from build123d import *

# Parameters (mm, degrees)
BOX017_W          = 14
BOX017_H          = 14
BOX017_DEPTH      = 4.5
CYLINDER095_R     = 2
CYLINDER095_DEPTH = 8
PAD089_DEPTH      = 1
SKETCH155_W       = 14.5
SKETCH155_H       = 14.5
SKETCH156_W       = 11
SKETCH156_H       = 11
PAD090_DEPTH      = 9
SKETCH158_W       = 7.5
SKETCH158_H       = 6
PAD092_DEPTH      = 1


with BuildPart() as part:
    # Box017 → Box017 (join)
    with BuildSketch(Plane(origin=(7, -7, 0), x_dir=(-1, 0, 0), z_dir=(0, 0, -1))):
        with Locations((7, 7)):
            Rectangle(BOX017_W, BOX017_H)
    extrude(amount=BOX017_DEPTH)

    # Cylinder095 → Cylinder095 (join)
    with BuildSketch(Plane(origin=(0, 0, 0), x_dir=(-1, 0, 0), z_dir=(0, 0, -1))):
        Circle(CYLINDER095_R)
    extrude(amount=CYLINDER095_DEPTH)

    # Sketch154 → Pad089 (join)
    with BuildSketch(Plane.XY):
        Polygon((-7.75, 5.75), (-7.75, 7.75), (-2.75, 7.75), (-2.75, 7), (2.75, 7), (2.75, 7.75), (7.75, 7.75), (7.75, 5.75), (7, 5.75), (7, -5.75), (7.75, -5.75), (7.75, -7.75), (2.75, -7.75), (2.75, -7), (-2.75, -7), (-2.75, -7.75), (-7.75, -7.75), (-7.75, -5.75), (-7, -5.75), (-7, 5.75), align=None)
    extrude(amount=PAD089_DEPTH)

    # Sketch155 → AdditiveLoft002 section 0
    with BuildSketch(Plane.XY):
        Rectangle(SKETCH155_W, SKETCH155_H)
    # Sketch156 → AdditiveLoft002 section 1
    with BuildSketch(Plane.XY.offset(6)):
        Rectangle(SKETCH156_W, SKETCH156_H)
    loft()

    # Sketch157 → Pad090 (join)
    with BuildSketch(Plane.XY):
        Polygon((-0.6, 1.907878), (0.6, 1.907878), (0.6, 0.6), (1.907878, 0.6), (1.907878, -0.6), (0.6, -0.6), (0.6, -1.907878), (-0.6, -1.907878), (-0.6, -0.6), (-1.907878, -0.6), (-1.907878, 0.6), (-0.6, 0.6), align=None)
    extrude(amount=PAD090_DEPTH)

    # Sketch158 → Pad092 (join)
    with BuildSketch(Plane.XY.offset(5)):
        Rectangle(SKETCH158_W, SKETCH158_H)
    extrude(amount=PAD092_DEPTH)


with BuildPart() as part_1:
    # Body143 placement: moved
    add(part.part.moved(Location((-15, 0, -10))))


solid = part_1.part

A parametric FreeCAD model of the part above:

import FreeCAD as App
import Part
import Sketcher

V = App.Vector
Q = App.Units.Quantity

doc = App.newDocument("Part")
params = doc.addObject("Spreadsheet::Sheet", "Params")
for row, (alias, value) in enumerate([
    ("sketch1_width", "14 mm"),
    ("pad1_length", "4.5 mm"),
    ("sketch2_diameter", "4 mm"),
    ("pad2_length", "8 mm"),
    ("sketch3_width", "5 mm"),
    ("sketch3_height", "2 mm"),
    ("sketch3_width2", "5.5 mm"),
    ("sketch3_height2", "11.5 mm"),
    ("pad3_length", "1 mm"),
    ("sketch4_width", "14.5 mm"),
    ("sketch5_width", "11 mm"),
    ("sketch6_width", "1.2 mm"),
    ("pad4_length", "9 mm"),
    ("sketch7_height", "6 mm"),
    ("sketch7_width", "7.5 mm"),
    ("pad5_length", "1 mm"),
], start=1):
    params.set(f"A{row}", alias)
    params.set(f"B{row}", "=" + value)
    params.setAlias(f"B{row}", alias)

body = doc.addObject("PartDesign::Body", "Body")

sketch1 = doc.addObject("Sketcher::SketchObject", "Sketch")
body.addObject(sketch1)
sketch1.AttachmentSupport = (doc.XY_Plane, [""])
sketch1.MapMode = "FlatFace"
sketch1.addGeometry(Part.LineSegment(V(7, 7, 0), V(7, -7, 0)), False)
sketch1.addGeometry(Part.LineSegment(V(7, -7, 0), V(-7, -7, 0)), False)
sketch1.addGeometry(Part.LineSegment(V(-7, -7, 0), V(-7, 7, 0)), False)
sketch1.addGeometry(Part.LineSegment(V(-7, 7, 0), V(7, 7, 0)), False)
sketch1.addConstraint(Sketcher.Constraint("Coincident", 0, 2, 1, 1))
sketch1.addConstraint(Sketcher.Constraint("Coincident", 1, 2, 2, 1))
sketch1.addConstraint(Sketcher.Constraint("Coincident", 2, 2, 3, 1))
sketch1.addConstraint(Sketcher.Constraint("Coincident", 3, 2, 0, 1))
sketch1.addConstraint(Sketcher.Constraint("Vertical", 0))
sketch1.addConstraint(Sketcher.Constraint("Horizontal", 1))
sketch1.addConstraint(Sketcher.Constraint("Vertical", 2))
sketch1.addConstraint(Sketcher.Constraint("Horizontal", 3))
sketch1.addConstraint(Sketcher.Constraint("Symmetric", 0, 2, 2, 2, -1, 1))
sketch1.addConstraint(Sketcher.Constraint("Equal", 3, 0))
sketch1.addConstraint(Sketcher.Constraint("DistanceX", 1, 2, 1, 1, Q("14 mm")))
sketch1.setExpression("Constraints[10]", "Params.sketch1_width")
pad1 = doc.addObject("PartDesign::Pad", "Pad")
body.addObject(pad1)
pad1.Profile = sketch1
pad1.setExpression("Length", "Params.pad1_length")
pad1.Reversed = True

sketch2 = doc.addObject("Sketcher::SketchObject", "Sketch001")
body.addObject(sketch2)
sketch2.AttachmentSupport = (doc.XY_Plane, [""])
sketch2.MapMode = "FlatFace"
sketch2.addGeometry(Part.Circle(V(0, 0, 0), V(0, 0, 1), 2), False)
sketch2.addConstraint(Sketcher.Constraint("Coincident", 0, 3, -1, 1))
sketch2.addConstraint(Sketcher.Constraint("Diameter", 0, Q("4 mm")))
sketch2.setExpression("Constraints[1]", "Params.sketch2_diameter")
pad2 = doc.addObject("PartDesign::Pad", "Pad001")
body.addObject(pad2)
pad2.Profile = sketch2
pad2.setExpression("Length", "Params.pad2_length")
pad2.Reversed = True

sketch3 = doc.addObject("Sketcher::SketchObject", "Sketch002")
body.addObject(sketch3)
sketch3.AttachmentSupport = (doc.XY_Plane, [""])
sketch3.MapMode = "FlatFace"
sketch3.addGeometry(Part.LineSegment(V(-7.75, 7.75, 0), V(-7.75, 5.75, 0)), False)
sketch3.addGeometry(Part.LineSegment(V(-7.75, 5.75, 0), V(-7, 5.75, 0)), False)
sketch3.addGeometry(Part.LineSegment(V(-7, 5.75, 0), V(-7, -5.75, 0)), False)
sketch3.addGeometry(Part.LineSegment(V(-7, -5.75, 0), V(-7.75, -5.75, 0)), False)
sketch3.addGeometry(Part.LineSegment(V(-7.75, -5.75, 0), V(-7.75, -7.75, 0)), False)
sketch3.addGeometry(Part.LineSegment(V(-7.75, -7.75, 0), V(-2.75, -7.75, 0)), False)
sketch3.addGeometry(Part.LineSegment(V(-2.75, -7.75, 0), V(-2.75, -7, 0)), False)
sketch3.addGeometry(Part.LineSegment(V(-2.75, -7, 0), V(2.75, -7, 0)), False)
sketch3.addGeometry(Part.LineSegment(V(2.75, -7, 0), V(2.75, -7.75, 0)), False)
sketch3.addGeometry(Part.LineSegment(V(2.75, -7.75, 0), V(7.75, -7.75, 0)), False)
sketch3.addGeometry(Part.LineSegment(V(7.75, -7.75, 0), V(7.75, -5.75, 0)), False)
sketch3.addGeometry(Part.LineSegment(V(7.75, -5.75, 0), V(7, -5.75, 0)), False)
sketch3.addGeometry(Part.LineSegment(V(7, -5.75, 0), V(7, 5.75, 0)), False)
sketch3.addGeometry(Part.LineSegment(V(7, 5.75, 0), V(7.75, 5.75, 0)), False)
sketch3.addGeometry(Part.LineSegment(V(7.75, 5.75, 0), V(7.75, 7.75, 0)), False)
sketch3.addGeometry(Part.LineSegment(V(7.75, 7.75, 0), V(2.75, 7.75, 0)), False)
sketch3.addGeometry(Part.LineSegment(V(2.75, 7.75, 0), V(2.75, 7, 0)), False)
sketch3.addGeometry(Part.LineSegment(V(2.75, 7, 0), V(-2.75, 7, 0)), False)
sketch3.addGeometry(Part.LineSegment(V(-2.75, 7, 0), V(-2.75, 7.75, 0)), False)
sketch3.addGeometry(Part.LineSegment(V(-2.75, 7.75, 0), V(-7.75, 7.75, 0)), False)
sketch3.addConstraint(Sketcher.Constraint("Coincident", 0, 2, 1, 1))
sketch3.addConstraint(Sketcher.Constraint("Coincident", 1, 2, 2, 1))
sketch3.addConstraint(Sketcher.Constraint("Coincident", 2, 2, 3, 1))
sketch3.addConstraint(Sketcher.Constraint("Coincident", 3, 2, 4, 1))
sketch3.addConstraint(Sketcher.Constraint("Coincident", 4, 2, 5, 1))
sketch3.addConstraint(Sketcher.Constraint("Coincident", 5, 2, 6, 1))
sketch3.addConstraint(Sketcher.Constraint("Coincident", 6, 2, 7, 1))
sketch3.addConstraint(Sketcher.Constraint("Coincident", 7, 2, 8, 1))
sketch3.addConstraint(Sketcher.Constraint("Coincident", 8, 2, 9, 1))
sketch3.addConstraint(Sketcher.Constraint("Coincident", 9, 2, 10, 1))
sketch3.addConstraint(Sketcher.Constraint("Coincident", 10, 2, 11, 1))
sketch3.addConstraint(Sketcher.Constraint("Coincident", 11, 2, 12, 1))
sketch3.addConstraint(Sketcher.Constraint("Coincident", 12, 2, 13, 1))
sketch3.addConstraint(Sketcher.Constraint("Coincident", 13, 2, 14, 1))
sketch3.addConstraint(Sketcher.Constraint("Coincident", 14, 2, 15, 1))
sketch3.addConstraint(Sketcher.Constraint("Coincident", 15, 2, 16, 1))
sketch3.addConstraint(Sketcher.Constraint("Coincident", 16, 2, 17, 1))
sketch3.addConstraint(Sketcher.Constraint("Coincident", 17, 2, 18, 1))
sketch3.addConstraint(Sketcher.Constraint("Coincident", 18, 2, 19, 1))
sketch3.addConstraint(Sketcher.Constraint("Coincident", 19, 2, 0, 1))
sketch3.addConstraint(Sketcher.Constraint("Vertical", 0))
sketch3.addConstraint(Sketcher.Constraint("Horizontal", 1))
sketch3.addConstraint(Sketcher.Constraint("Vertical", 2))
sketch3.addConstraint(Sketcher.Constraint("Horizontal", 3))
sketch3.addConstraint(Sketcher.Constraint("Vertical", 4))
sketch3.addConstraint(Sketcher.Constraint("Horizontal", 5))
sketch3.addConstraint(Sketcher.Constraint("Vertical", 6))
sketch3.addConstraint(Sketcher.Constraint("Horizontal", 7))
sketch3.addConstraint(Sketcher.Constraint("Vertical", 8))
sketch3.addConstraint(Sketcher.Constraint("Horizontal", 9))
sketch3.addConstraint(Sketcher.Constraint("Vertical", 10))
sketch3.addConstraint(Sketcher.Constraint("Horizontal", 11))
sketch3.addConstraint(Sketcher.Constraint("Vertical", 12))
sketch3.addConstraint(Sketcher.Constraint("Horizontal", 13))
sketch3.addConstraint(Sketcher.Constraint("Vertical", 14))
sketch3.addConstraint(Sketcher.Constraint("Horizontal", 15))
sketch3.addConstraint(Sketcher.Constraint("Vertical", 16))
sketch3.addConstraint(Sketcher.Constraint("Horizontal", 17))
sketch3.addConstraint(Sketcher.Constraint("Vertical", 18))
sketch3.addConstraint(Sketcher.Constraint("Horizontal", 19))
sketch3.addConstraint(Sketcher.Constraint("Symmetric", 0, 2, 10, 2, -1, 1))
sketch3.addConstraint(Sketcher.Constraint("Symmetric", 2, 2, 12, 2, -1, 1))
sketch3.addConstraint(Sketcher.Constraint("Symmetric", 4, 2, 14, 2, -1, 1))
sketch3.addConstraint(Sketcher.Constraint("Symmetric", 6, 2, 16, 2, -1, 1))
sketch3.addConstraint(Sketcher.Constraint("Symmetric", 8, 2, 18, 2, -1, 1))
sketch3.addConstraint(Sketcher.Constraint("Symmetric", 5, 2, 8, 2, -2))
sketch3.addConstraint(Sketcher.Constraint("Symmetric", 3, 2, 10, 2, -2))
sketch3.addConstraint(Sketcher.Constraint("Equal", 13, 6))
sketch3.addConstraint(Sketcher.Constraint("DistanceX", 5, 1, 5, 2, Q("5 mm")))
sketch3.addConstraint(Sketcher.Constraint("DistanceY", 0, 2, 0, 1, Q("2 mm")))
sketch3.addConstraint(Sketcher.Constraint("DistanceX", 7, 1, 7, 2, Q("5.5 mm")))
sketch3.addConstraint(Sketcher.Constraint("DistanceY", 2, 2, 2, 1, Q("11.5 mm")))
sketch3.addConstraint(Sketcher.Constraint("DistanceX", 1, 2, -1, 1, Q("7 mm")))
sketch3.setExpression("Constraints[48]", "Params.sketch3_width")
sketch3.setExpression("Constraints[49]", "Params.sketch3_height")
sketch3.setExpression("Constraints[50]", "Params.sketch3_width2")
sketch3.setExpression("Constraints[51]", "Params.sketch3_height2")
pad3 = doc.addObject("PartDesign::Pad", "Pad002")
body.addObject(pad3)
pad3.Profile = sketch3
pad3.setExpression("Length", "Params.pad3_length")

sketch4 = doc.addObject("Sketcher::SketchObject", "Sketch003")
body.addObject(sketch4)
sketch4.AttachmentSupport = (doc.XY_Plane, [""])
sketch4.MapMode = "FlatFace"
sketch4.addGeometry(Part.LineSegment(V(-7.25, 7.25, 0), V(-7.25, -7.25, 0)), False)
sketch4.addGeometry(Part.LineSegment(V(-7.25, -7.25, 0), V(7.25, -7.25, 0)), False)
sketch4.addGeometry(Part.LineSegment(V(7.25, -7.25, 0), V(7.25, 7.25, 0)), False)
sketch4.addGeometry(Part.LineSegment(V(7.25, 7.25, 0), V(-7.25, 7.25, 0)), False)
sketch4.addConstraint(Sketcher.Constraint("Coincident", 0, 2, 1, 1))
sketch4.addConstraint(Sketcher.Constraint("Coincident", 1, 2, 2, 1))
sketch4.addConstraint(Sketcher.Constraint("Coincident", 2, 2, 3, 1))
sketch4.addConstraint(Sketcher.Constraint("Coincident", 3, 2, 0, 1))
sketch4.addConstraint(Sketcher.Constraint("Vertical", 0))
sketch4.addConstraint(Sketcher.Constraint("Horizontal", 1))
sketch4.addConstraint(Sketcher.Constraint("Vertical", 2))
sketch4.addConstraint(Sketcher.Constraint("Horizontal", 3))
sketch4.addConstraint(Sketcher.Constraint("Symmetric", 0, 2, 2, 2, -1, 1))
sketch4.addConstraint(Sketcher.Constraint("Equal", 3, 0))
sketch4.addConstraint(Sketcher.Constraint("DistanceX", 1, 1, 1, 2, Q("14.5 mm")))
sketch4.setExpression("Constraints[10]", "Params.sketch4_width")

sketch5 = doc.addObject("Sketcher::SketchObject", "Sketch004")
body.addObject(sketch5)
sketch5.AttachmentSupport = (doc.XY_Plane, [""])
sketch5.MapMode = "FlatFace"
sketch5.AttachmentOffset = App.Placement(V(0, 0, 6), App.Rotation())
sketch5.addGeometry(Part.LineSegment(V(-5.5, 5.5, 0), V(-5.5, -5.5, 0)), False)
sketch5.addGeometry(Part.LineSegment(V(-5.5, -5.5, 0), V(5.5, -5.5, 0)), False)
sketch5.addGeometry(Part.LineSegment(V(5.5, -5.5, 0), V(5.5, 5.5, 0)), False)
sketch5.addGeometry(Part.LineSegment(V(5.5, 5.5, 0), V(-5.5, 5.5, 0)), False)
sketch5.addConstraint(Sketcher.Constraint("Coincident", 0, 2, 1, 1))
sketch5.addConstraint(Sketcher.Constraint("Coincident", 1, 2, 2, 1))
sketch5.addConstraint(Sketcher.Constraint("Coincident", 2, 2, 3, 1))
sketch5.addConstraint(Sketcher.Constraint("Coincident", 3, 2, 0, 1))
sketch5.addConstraint(Sketcher.Constraint("Vertical", 0))
sketch5.addConstraint(Sketcher.Constraint("Horizontal", 1))
sketch5.addConstraint(Sketcher.Constraint("Vertical", 2))
sketch5.addConstraint(Sketcher.Constraint("Horizontal", 3))
sketch5.addConstraint(Sketcher.Constraint("Symmetric", 0, 2, 2, 2, -1, 1))
sketch5.addConstraint(Sketcher.Constraint("Equal", 3, 0))
sketch5.addConstraint(Sketcher.Constraint("DistanceX", 1, 1, 1, 2, Q("11 mm")))
sketch5.setExpression("Constraints[10]", "Params.sketch5_width")

additiveloft = doc.addObject("PartDesign::AdditiveLoft", "AdditiveLoft")
body.addObject(additiveloft)
additiveloft.Profile = sketch4
additiveloft.Sections = [sketch5]

sketch6 = doc.addObject("Sketcher::SketchObject", "Sketch005")
body.addObject(sketch6)
sketch6.AttachmentSupport = (doc.XY_Plane, [""])
sketch6.MapMode = "FlatFace"
sketch6.addGeometry(Part.LineSegment(V(0.6, 1.907878, 0), V(-0.6, 1.907878, 0)), False)
sketch6.addGeometry(Part.LineSegment(V(-0.6, 1.907878, 0), V(-0.6, 0.6, 0)), False)
sketch6.addGeometry(Part.LineSegment(V(-0.6, 0.6, 0), V(-1.907878, 0.6, 0)), False)
sketch6.addGeometry(Part.LineSegment(V(-1.907878, 0.6, 0), V(-1.907878, -0.6, 0)), False)
sketch6.addGeometry(Part.LineSegment(V(-1.907878, -0.6, 0), V(-0.6, -0.6, 0)), False)
sketch6.addGeometry(Part.LineSegment(V(-0.6, -0.6, 0), V(-0.6, -1.907878, 0)), False)
sketch6.addGeometry(Part.LineSegment(V(-0.6, -1.907878, 0), V(0.6, -1.907878, 0)), False)
sketch6.addGeometry(Part.LineSegment(V(0.6, -1.907878, 0), V(0.6, -0.6, 0)), False)
sketch6.addGeometry(Part.LineSegment(V(0.6, -0.6, 0), V(1.907878, -0.6, 0)), False)
sketch6.addGeometry(Part.LineSegment(V(1.907878, -0.6, 0), V(1.907878, 0.6, 0)), False)
sketch6.addGeometry(Part.LineSegment(V(1.907878, 0.6, 0), V(0.6, 0.6, 0)), False)
sketch6.addGeometry(Part.LineSegment(V(0.6, 0.6, 0), V(0.6, 1.907878, 0)), False)
sketch6.addConstraint(Sketcher.Constraint("Coincident", 0, 2, 1, 1))
sketch6.addConstraint(Sketcher.Constraint("Coincident", 1, 2, 2, 1))
sketch6.addConstraint(Sketcher.Constraint("Coincident", 2, 2, 3, 1))
sketch6.addConstraint(Sketcher.Constraint("Coincident", 3, 2, 4, 1))
sketch6.addConstraint(Sketcher.Constraint("Coincident", 4, 2, 5, 1))
sketch6.addConstraint(Sketcher.Constraint("Coincident", 5, 2, 6, 1))
sketch6.addConstraint(Sketcher.Constraint("Coincident", 6, 2, 7, 1))
sketch6.addConstraint(Sketcher.Constraint("Coincident", 7, 2, 8, 1))
sketch6.addConstraint(Sketcher.Constraint("Coincident", 8, 2, 9, 1))
sketch6.addConstraint(Sketcher.Constraint("Coincident", 9, 2, 10, 1))
sketch6.addConstraint(Sketcher.Constraint("Coincident", 10, 2, 11, 1))
sketch6.addConstraint(Sketcher.Constraint("Coincident", 11, 2, 0, 1))
sketch6.addConstraint(Sketcher.Constraint("Horizontal", 0))
sketch6.addConstraint(Sketcher.Constraint("Vertical", 1))
sketch6.addConstraint(Sketcher.Constraint("Horizontal", 2))
sketch6.addConstraint(Sketcher.Constraint("Vertical", 3))
sketch6.addConstraint(Sketcher.Constraint("Horizontal", 4))
sketch6.addConstraint(Sketcher.Constraint("Vertical", 5))
sketch6.addConstraint(Sketcher.Constraint("Horizontal", 6))
sketch6.addConstraint(Sketcher.Constraint("Vertical", 7))
sketch6.addConstraint(Sketcher.Constraint("Horizontal", 8))
sketch6.addConstraint(Sketcher.Constraint("Vertical", 9))
sketch6.addConstraint(Sketcher.Constraint("Horizontal", 10))
sketch6.addConstraint(Sketcher.Constraint("Vertical", 11))
sketch6.addConstraint(Sketcher.Constraint("Symmetric", 0, 2, 6, 2, -1, 1))
sketch6.addConstraint(Sketcher.Constraint("Symmetric", 2, 2, 8, 2, -1, 1))
sketch6.addConstraint(Sketcher.Constraint("Symmetric", 4, 2, 10, 2, -1, 1))
sketch6.addConstraint(Sketcher.Constraint("Symmetric", 4, 2, 7, 2, -2))
sketch6.addConstraint(Sketcher.Constraint("Equal", 10, 1))
sketch6.addConstraint(Sketcher.Constraint("Equal", 6, 3))
sketch6.addConstraint(Sketcher.Constraint("DistanceX", 0, 2, 0, 1, Q("1.2 mm")))
sketch6.addConstraint(Sketcher.Constraint("DistanceX", 2, 2, 2, 1, Q("1.307878 mm")))
sketch6.setExpression("Constraints[30]", "Params.sketch6_width")
pad4 = doc.addObject("PartDesign::Pad", "Pad003")
body.addObject(pad4)
pad4.Profile = sketch6
pad4.setExpression("Length", "Params.pad4_length")

sketch7 = doc.addObject("Sketcher::SketchObject", "Sketch006")
body.addObject(sketch7)
sketch7.AttachmentSupport = (doc.XY_Plane, [""])
sketch7.MapMode = "FlatFace"
sketch7.AttachmentOffset = App.Placement(V(0, 0, 5), App.Rotation())
sketch7.addGeometry(Part.LineSegment(V(-3.75, 3, 0), V(-3.75, -3, 0)), False)
sketch7.addGeometry(Part.LineSegment(V(-3.75, -3, 0), V(3.75, -3, 0)), False)
sketch7.addGeometry(Part.LineSegment(V(3.75, -3, 0), V(3.75, 3, 0)), False)
sketch7.addGeometry(Part.LineSegment(V(3.75, 3, 0), V(-3.75, 3, 0)), False)
sketch7.addConstraint(Sketcher.Constraint("Coincident", 0, 2, 1, 1))
sketch7.addConstraint(Sketcher.Constraint("Coincident", 1, 2, 2, 1))
sketch7.addConstraint(Sketcher.Constraint("Coincident", 2, 2, 3, 1))
sketch7.addConstraint(Sketcher.Constraint("Coincident", 3, 2, 0, 1))
sketch7.addConstraint(Sketcher.Constraint("Vertical", 0))
sketch7.addConstraint(Sketcher.Constraint("Horizontal", 1))
sketch7.addConstraint(Sketcher.Constraint("Vertical", 2))
sketch7.addConstraint(Sketcher.Constraint("Horizontal", 3))
sketch7.addConstraint(Sketcher.Constraint("Symmetric", 0, 2, 2, 2, -1, 1))
sketch7.addConstraint(Sketcher.Constraint("DistanceY", 0, 2, 0, 1, Q("6 mm")))
sketch7.addConstraint(Sketcher.Constraint("DistanceX", 1, 1, 1, 2, Q("7.5 mm")))
sketch7.setExpression("Constraints[9]", "Params.sketch7_height")
sketch7.setExpression("Constraints[10]", "Params.sketch7_width")
pad5 = doc.addObject("PartDesign::Pad", "Pad004")
body.addObject(pad5)
pad5.Profile = sketch7
pad5.setExpression("Length", "Params.pad5_length")
body2 = doc.addObject("PartDesign::Body", "Body001")
doc.recompute()

body.Placement = App.Placement(V(-15, 0, -10), App.Rotation(V(0, 0, 1), 0))
boolean = doc.addObject("PartDesign::Boolean", "Boolean")
body2.addObject(boolean)
boolean.Type = "Fuse"
boolean.addObjects([body])

doc.recompute()
